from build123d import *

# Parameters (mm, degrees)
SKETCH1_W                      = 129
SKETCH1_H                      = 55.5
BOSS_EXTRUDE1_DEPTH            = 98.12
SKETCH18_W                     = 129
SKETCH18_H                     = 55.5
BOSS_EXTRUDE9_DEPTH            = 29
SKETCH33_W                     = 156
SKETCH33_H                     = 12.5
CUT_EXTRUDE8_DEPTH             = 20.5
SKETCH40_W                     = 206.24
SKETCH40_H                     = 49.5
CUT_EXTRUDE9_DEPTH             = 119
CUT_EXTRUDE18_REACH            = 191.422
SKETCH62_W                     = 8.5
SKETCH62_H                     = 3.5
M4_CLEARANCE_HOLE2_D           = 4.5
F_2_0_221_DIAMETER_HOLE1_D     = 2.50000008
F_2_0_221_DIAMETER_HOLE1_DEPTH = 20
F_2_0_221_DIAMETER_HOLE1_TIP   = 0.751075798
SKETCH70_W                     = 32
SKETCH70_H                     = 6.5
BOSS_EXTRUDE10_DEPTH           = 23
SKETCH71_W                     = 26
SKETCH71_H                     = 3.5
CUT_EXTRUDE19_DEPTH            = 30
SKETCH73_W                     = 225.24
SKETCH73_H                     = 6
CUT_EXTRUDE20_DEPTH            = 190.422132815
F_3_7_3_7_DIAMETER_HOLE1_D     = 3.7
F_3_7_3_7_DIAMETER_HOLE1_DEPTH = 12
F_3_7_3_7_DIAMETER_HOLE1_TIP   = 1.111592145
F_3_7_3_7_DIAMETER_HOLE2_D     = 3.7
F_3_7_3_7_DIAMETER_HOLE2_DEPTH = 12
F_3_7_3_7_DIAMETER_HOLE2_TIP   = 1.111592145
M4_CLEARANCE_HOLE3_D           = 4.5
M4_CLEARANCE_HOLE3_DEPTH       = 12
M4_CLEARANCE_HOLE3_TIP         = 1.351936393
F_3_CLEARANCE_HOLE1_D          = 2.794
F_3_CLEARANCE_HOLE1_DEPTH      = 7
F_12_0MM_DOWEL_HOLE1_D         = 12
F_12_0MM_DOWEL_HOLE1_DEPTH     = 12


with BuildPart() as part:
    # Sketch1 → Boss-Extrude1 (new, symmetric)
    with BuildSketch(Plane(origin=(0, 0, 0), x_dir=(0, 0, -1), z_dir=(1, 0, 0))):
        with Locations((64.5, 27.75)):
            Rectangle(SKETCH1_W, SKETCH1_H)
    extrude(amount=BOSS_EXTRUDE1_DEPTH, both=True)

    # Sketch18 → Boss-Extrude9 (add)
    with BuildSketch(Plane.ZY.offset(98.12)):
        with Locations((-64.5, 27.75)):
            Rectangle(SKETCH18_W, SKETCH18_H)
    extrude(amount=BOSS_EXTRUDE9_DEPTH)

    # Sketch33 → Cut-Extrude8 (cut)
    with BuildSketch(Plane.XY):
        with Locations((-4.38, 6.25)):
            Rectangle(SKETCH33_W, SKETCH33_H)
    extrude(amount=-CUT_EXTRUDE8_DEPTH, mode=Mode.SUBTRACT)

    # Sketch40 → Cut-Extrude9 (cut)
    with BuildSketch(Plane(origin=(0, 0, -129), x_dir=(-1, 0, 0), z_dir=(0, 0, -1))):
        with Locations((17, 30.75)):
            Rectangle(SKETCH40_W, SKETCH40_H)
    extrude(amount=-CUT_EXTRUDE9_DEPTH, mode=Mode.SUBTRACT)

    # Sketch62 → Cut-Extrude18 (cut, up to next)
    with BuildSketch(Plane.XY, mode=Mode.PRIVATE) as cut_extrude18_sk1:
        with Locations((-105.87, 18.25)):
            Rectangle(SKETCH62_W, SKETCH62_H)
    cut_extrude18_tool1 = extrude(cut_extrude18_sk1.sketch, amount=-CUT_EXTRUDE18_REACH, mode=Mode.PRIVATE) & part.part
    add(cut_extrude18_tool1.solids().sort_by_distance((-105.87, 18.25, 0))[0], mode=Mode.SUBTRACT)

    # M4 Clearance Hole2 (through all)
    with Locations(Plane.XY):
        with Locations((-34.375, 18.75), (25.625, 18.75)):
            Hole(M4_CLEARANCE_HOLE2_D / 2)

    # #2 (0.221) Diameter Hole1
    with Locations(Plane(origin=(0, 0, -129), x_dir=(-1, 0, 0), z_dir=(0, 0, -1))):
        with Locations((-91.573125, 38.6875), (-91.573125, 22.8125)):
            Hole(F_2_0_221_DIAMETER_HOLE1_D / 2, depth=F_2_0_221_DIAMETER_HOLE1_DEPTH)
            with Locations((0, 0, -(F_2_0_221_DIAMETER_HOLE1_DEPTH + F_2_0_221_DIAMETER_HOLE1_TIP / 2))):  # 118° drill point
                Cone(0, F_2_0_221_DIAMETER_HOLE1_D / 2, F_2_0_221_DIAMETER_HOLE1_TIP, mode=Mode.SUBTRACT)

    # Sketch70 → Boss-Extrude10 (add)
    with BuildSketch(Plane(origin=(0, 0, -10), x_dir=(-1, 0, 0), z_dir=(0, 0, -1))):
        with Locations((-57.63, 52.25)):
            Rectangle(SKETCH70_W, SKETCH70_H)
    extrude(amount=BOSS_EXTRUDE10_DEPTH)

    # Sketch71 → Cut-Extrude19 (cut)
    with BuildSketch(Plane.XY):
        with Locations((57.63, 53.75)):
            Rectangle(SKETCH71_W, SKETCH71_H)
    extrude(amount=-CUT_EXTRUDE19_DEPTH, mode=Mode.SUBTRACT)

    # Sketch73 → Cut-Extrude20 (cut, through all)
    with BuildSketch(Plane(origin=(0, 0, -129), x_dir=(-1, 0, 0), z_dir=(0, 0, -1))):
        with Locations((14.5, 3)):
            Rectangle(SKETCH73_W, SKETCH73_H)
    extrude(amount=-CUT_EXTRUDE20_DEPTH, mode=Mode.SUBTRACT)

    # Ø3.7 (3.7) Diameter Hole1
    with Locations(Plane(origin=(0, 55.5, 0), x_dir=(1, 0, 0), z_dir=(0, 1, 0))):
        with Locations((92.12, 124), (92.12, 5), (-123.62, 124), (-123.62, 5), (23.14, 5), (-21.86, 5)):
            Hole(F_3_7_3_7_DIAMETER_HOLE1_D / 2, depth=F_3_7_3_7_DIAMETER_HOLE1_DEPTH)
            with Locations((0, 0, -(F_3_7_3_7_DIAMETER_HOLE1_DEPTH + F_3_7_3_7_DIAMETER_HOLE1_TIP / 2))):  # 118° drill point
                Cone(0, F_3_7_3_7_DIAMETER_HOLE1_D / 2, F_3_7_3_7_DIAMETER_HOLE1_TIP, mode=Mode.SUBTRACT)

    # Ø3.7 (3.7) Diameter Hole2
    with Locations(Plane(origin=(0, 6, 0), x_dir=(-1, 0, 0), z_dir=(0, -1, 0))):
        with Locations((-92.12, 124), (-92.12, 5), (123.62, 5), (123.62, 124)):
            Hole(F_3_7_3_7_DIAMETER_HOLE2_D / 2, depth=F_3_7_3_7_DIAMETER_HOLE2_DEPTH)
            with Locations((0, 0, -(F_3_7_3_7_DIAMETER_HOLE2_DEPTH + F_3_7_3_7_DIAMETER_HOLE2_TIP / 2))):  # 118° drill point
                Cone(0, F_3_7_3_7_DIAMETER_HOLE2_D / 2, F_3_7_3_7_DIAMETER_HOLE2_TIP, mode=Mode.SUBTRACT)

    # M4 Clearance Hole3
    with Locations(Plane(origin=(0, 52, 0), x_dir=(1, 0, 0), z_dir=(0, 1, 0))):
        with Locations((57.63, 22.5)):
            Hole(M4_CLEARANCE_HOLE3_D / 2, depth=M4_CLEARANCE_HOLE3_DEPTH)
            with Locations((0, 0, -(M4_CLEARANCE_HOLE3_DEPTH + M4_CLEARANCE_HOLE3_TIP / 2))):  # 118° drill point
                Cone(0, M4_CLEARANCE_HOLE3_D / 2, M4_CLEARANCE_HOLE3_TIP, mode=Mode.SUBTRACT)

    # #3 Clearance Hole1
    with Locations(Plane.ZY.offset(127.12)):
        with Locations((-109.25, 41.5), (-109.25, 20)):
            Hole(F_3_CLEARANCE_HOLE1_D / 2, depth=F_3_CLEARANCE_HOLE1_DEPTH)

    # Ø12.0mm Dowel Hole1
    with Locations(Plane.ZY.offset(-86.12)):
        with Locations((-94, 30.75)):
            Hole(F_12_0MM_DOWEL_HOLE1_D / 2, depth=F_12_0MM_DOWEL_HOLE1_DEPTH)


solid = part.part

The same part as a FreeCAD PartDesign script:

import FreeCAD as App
import Part
import Sketcher
from FreeCAD import Vector

doc = App.newDocument("Part")
body = doc.addObject("PartDesign::Body", "Body")

# Sketch on YZ plane
sketch1 = doc.addObject("Sketcher::SketchObject", "Sketch")
body.addObject(sketch1)
sketch1.AttachmentSupport = (doc.YZ_Plane, [""])
sketch1.MapMode = "FlatFace"
sketch1.addGeometry([
    Part.LineSegment(Vector(56, 0, 0), Vector(0, 0, 0)),
    Part.LineSegment(Vector(0, 0, 0), Vector(0, -129, 0)),
    Part.LineSegment(Vector(0, -129, 0), Vector(56, -129, 0)),
    Part.LineSegment(Vector(56, -129, 0), Vector(56, 0, 0)),
], False)
sketch1.addConstraint([
    Sketcher.Constraint("Coincident", 0, 2, 1, 1),
    Sketcher.Constraint("Coincident", 1, 2, 2, 1),
    Sketcher.Constraint("Coincident", 2, 2, 3, 1),
    Sketcher.Constraint("Coincident", 3, 2, 0, 1),
    Sketcher.Constraint("Horizontal", 0),
    Sketcher.Constraint("Vertical", 1),
    Sketcher.Constraint("Horizontal", 2),
    Sketcher.Constraint("Vertical", 3),
    Sketcher.Constraint("Coincident", 0, 2, -1, 1),
    Sketcher.Constraint("DistanceY", 1, 2, 1, 1, 129.0),
    Sketcher.Constraint("DistanceX", 0, 2, 0, 1, 55.5),
])
pad1 = doc.addObject("PartDesign::Pad", "Pad")
body.addObject(pad1)
pad1.Profile = sketch1
pad1.Length = 196.24
pad1.Midplane = True

# Sketch on YZ plane
sketch2 = doc.addObject("Sketcher::SketchObject", "Sketch001")
body.addObject(sketch2)
sketch2.AttachmentSupport = (doc.YZ_Plane, [""])
sketch2.MapMode = "FlatFace"
sketch2.AttachmentOffset = App.Placement(Vector(0, 0, -98.12), App.Rotation())
sketch2.addGeometry([
    Part.LineSegment(Vector(56, -129, 0), Vector(0, -129, 0)),
    Part.LineSegment(Vector(0, -129, 0), Vector(0, 0, 0)),
    Part.LineSegment(Vector(0, 0, 0), Vector(56, 0, 0)),
    Part.LineSegment(Vector(56, 0, 0), Vector(56, -129, 0)),
], False)
sketch2.addConstraint([
    Sketcher.Constraint("Coincident", 0, 2, 1, 1),
    Sketcher.Constraint("Coincident", 1, 2, 2, 1),
    Sketcher.Constraint("Coincident", 2, 2, 3, 1),
    Sketcher.Constraint("Coincident", 3, 2, 0, 1),
    Sketcher.Constraint("Horizontal", 0),
    Sketcher.Constraint("Vertical", 1),
    Sketcher.Constraint("Horizontal", 2),
    Sketcher.Constraint("Vertical", 3),
    Sketcher.Constraint("Coincident", 1, 2, -1, 1),
    Sketcher.Constraint("DistanceY", 1, 1, 1, 2, 129.0),
    Sketcher.Constraint("DistanceX", 0, 2, 0, 1, 55.5),
])
pad2 = doc.addObject("PartDesign::Pad", "Pad001")
body.addObject(pad2)
pad2.Profile = sketch2
pad2.Length = 29
pad2.Reversed = True

# Sketch on XY plane
sketch3 = doc.addObject("Sketcher::SketchObject", "Sketch002")
body.addObject(sketch3)
sketch3.AttachmentSupport = (doc.XY_Plane, [""])
sketch3.MapMode = "FlatFace"
sketch3.addGeometry([
    Part.LineSegment(Vector(-82, 12, 0), Vector(-82, 0, 0)),
    Part.LineSegment(Vector(-82, 0, 0), Vector(74, 0, 0)),
    Part.LineSegment(Vector(74, 0, 0), Vector(74, 12, 0)),
    Part.LineSegment(Vector(74, 12, 0), Vector(-82, 12, 0)),
], False)
sketch3.addConstraint([
    Sketcher.Constraint("Coincident", 0, 2, 1, 1),
    Sketcher.Constraint("Coincident", 1, 2, 2, 1),
    Sketcher.Constraint("Coincident", 2, 2, 3, 1),
    Sketcher.Constraint("Coincident", 3, 2, 0, 1),
    Sketcher.Constraint("Vertical", 0),
    Sketcher.Constraint("Horizontal", 1),
    Sketcher.Constraint("Vertical", 2),
    Sketcher.Constraint("Horizontal", 3),
    Sketcher.Constraint("PointOnObject", 0, 2, -1),
    Sketcher.Constraint("DistanceX", 1, 1, 1, 2, 156.0),
    Sketcher.Constraint("DistanceY", 0, 2, 0, 1, 12.5),
    Sketcher.Constraint("DistanceX", 0, 2, -1, 1, 82.38),
])
pocket1 = doc.addObject("PartDesign::Pocket", "Pocket")
body.addObject(pocket1)
pocket1.Profile = sketch3
pocket1.Length = 20.5

# Sketch on XY plane
sketch4 = doc.addObject("Sketcher::SketchObject", "Sketch003")
body.addObject(sketch4)
sketch4.AttachmentSupport = (doc.XY_Plane, [""])
sketch4.MapMode = "FlatFace"
sketch4.AttachmentOffset = App.Placement(Vector(0, 0, -129), App.Rotation())
sketch4.addGeometry([
    Part.LineSegment(Vector(86, 56, 0), Vector(86, 6, 0)),
    Part.LineSegment(Vector(86, 6, 0), Vector(-120, 6, 0)),
    Part.LineSegment(Vector(-120, 6, 0), Vector(-120, 56, 0)),
    Part.LineSegment(Vector(-120, 56, 0), Vector(86, 56, 0)),
], False)
sketch4.addConstraint([
    Sketcher.Constraint("Coincident", 0, 2, 1, 1),
    Sketcher.Constraint("Coincident", 1, 2, 2, 1),
    Sketcher.Constraint("Coincident", 2, 2, 3, 1),
    Sketcher.Constraint("Coincident", 3, 2, 0, 1),
    Sketcher.Constraint("Vertical", 0),
    Sketcher.Constraint("Horizontal", 1),
    Sketcher.Constraint("Vertical", 2),
    Sketcher.Constraint("Horizontal", 3),
    Sketcher.Constraint("DistanceY", 0, 2, 0, 1, 49.5),
    Sketcher.Constraint("DistanceY", -1, 1, 0, 2, 6.0),
    Sketcher.Constraint("DistanceX", 1, 2, 1, 1, 206.24),
    Sketcher.Constraint("DistanceX", -1, 1, 0, 2, 86.12),
])
pocket2 = doc.addObject("PartDesign::Pocket", "Pocket001")
body.addObject(pocket2)
pocket2.Profile = sketch4
pocket2.Length = 119
pocket2.Reversed = True

# Sketch on XY plane
sketch5 = doc.addObject("Sketcher::SketchObject", "Sketch004")
body.addObject(sketch5)
sketch5.AttachmentSupport = (doc.XY_Plane, [""])
sketch5.MapMode = "FlatFace"
sketch5.addGeometry([
    Part.LineSegment(Vector(-110.1, 20, 0), Vector(-110.1, 16.5, 0)),
    Part.LineSegment(Vector(-110.1, 16.5, 0), Vector(-101.6, 16.5, 0)),
    Part.LineSegment(Vector(-101.6, 16.5, 0), Vector(-101.6, 20, 0)),
    Part.LineSegment(Vector(-101.6, 20, 0), Vector(-110.1, 20, 0)),
], False)
sketch5.addConstraint([
    Sketcher.Constraint("Coincident", 0, 2, 1, 1),
    Sketcher.Constraint("Coincident", 1, 2, 2, 1),
    Sketcher.Constraint("Coincident", 2, 2, 3, 1),
    Sketcher.Constraint("Coincident", 3, 2, 0, 1),
    Sketcher.Constraint("Vertical", 0),
    Sketcher.Constraint("Horizontal", 1),
    Sketcher.Constraint("Vertical", 2),
    Sketcher.Constraint("Horizontal", 3),
    Sketcher.Constraint("DistanceX", 1, 1, 1, 2, 8.5),
    Sketcher.Constraint("DistanceY", 0, 2, 0, 1, 3.5),
    Sketcher.Constraint("DistanceY", -1, 1, 2, 2, 20.0),
    Sketcher.Constraint("DistanceX", 0, 2, -1, 1, 110.12),
])
pocket3 = doc.addObject("PartDesign::Pocket", "Pocket002")
body.addObject(pocket3)
pocket3.Profile = sketch5
pocket3.Type = "UpToFirst"

# Sketch on XY plane
sketch6 = doc.addObject("Sketcher::SketchObject", "Sketch005")
body.addObject(sketch6)
sketch6.AttachmentSupport = (doc.XY_Plane, [""])
sketch6.MapMode = "FlatFace"
sketch6.addGeometry([
    Part.Circle(Vector(-34.4, 18.8, 0), Vector(0, 0, 1), 2.2),
    Part.Circle(Vector(25.6, 18.8, 0), Vector(0, 0, 1), 2.2),
], False)
sketch6.addConstraint([
    Sketcher.Constraint("Equal", 0, 1),
    Sketcher.Constraint("Horizontal", 0, 3, 1, 3),
    Sketcher.Constraint("Diameter", 0, 4.5),
    Sketcher.Constraint("DistanceX", 0, 3, 1, 3, 60.0),
    Sketcher.Constraint("DistanceY", -1, 1, 0, 3, 18.75),
    Sketcher.Constraint("DistanceX", 0, 3, -1, 1, 34.375),
])
doc.recompute()
hole = doc.addObject("PartDesign::Hole", "Hole")
body.addObject(hole)
hole.Profile = sketch6
hole.ThreadType = "None"
hole.Diameter = 4.5
hole.DepthType = "ThroughAll"

# Sketch on XY plane
sketch7 = doc.addObject("Sketcher::SketchObject", "Sketch006")
body.addObject(sketch7)
sketch7.AttachmentSupport = (doc.XY_Plane, [""])
sketch7.MapMode = "FlatFace"
sketch7.AttachmentOffset = App.Placement(Vector(0, 0, -129), App.Rotation())
sketch7.addGeometry([
    Part.Circle(Vector(91.6, 38.7, 0), Vector(0, 0, 1), 1.3),
    Part.Circle(Vector(91.6, 22.8, 0), Vector(0, 0, 1), 1.3),
], False)
sketch7.addConstraint([
    Sketcher.Constraint("Equal", 0, 1),
    Sketcher.Constraint("Vertical", 0, 3, 1, 3),
    Sketcher.Constraint("Diameter", 0, 2.5),
    Sketcher.Constraint("DistanceY", 1, 3, 0, 3, 15.875),
    Sketcher.Constraint("DistanceY", -1, 1, 0, 3, 38.6875),
    Sketcher.Constraint("DistanceX", -1, 1, 0, 3, 91.573125),
])
doc.recompute()
hole2 = doc.addObject("PartDesign::Hole", "Hole001")
body.addObject(hole2)
hole2.Profile = sketch7
hole2.ThreadType = "None"
hole2.Diameter = 2.5
hole2.DepthType = "Dimension"
hole2.Depth = 20
hole2.DrillPoint = "Angled"
hole2.DrillPointAngle = 118
hole2.Reversed = True

# Sketch on XY plane
sketch8 = doc.addObject("Sketcher::SketchObject", "Sketch007")
body.addObject(sketch8)
sketch8.AttachmentSupport = (doc.XY_Plane, [""])
sketch8.MapMode = "FlatFace"
sketch8.AttachmentOffset = App.Placement(Vector(0, 0, -10), App.Rotation())
sketch8.addGeometry([
    Part.LineSegment(Vector(74, 56, 0), Vector(74, 49, 0)),
    Part.LineSegment(Vector(74, 49, 0), Vector(42, 49, 0)),
    Part.LineSegment(Vector(42, 49, 0), Vector(42, 56, 0)),
    Part.LineSegment(Vector(42, 56, 0), Vector(74, 56, 0)),
], False)
sketch8.addConstraint([
    Sketcher.Constraint("Coincident", 0, 2, 1, 1),
    Sketcher.Constraint("Coincident", 1, 2, 2, 1),
    Sketcher.Constraint("Coincident", 2, 2, 3, 1),
    Sketcher.Constraint("Coincident", 3, 2, 0, 1),
    Sketcher.Constraint("Vertical", 0),
    Sketcher.Constraint("Horizontal", 1),
    Sketcher.Constraint("Vertical", 2),
    Sketcher.Constraint("Horizontal", 3),
    Sketcher.Constraint("DistanceX", 1, 2, 1, 1, 32.0),
    Sketcher.Constraint("DistanceY", 0, 2, 0, 1, 6.5),
    Sketcher.Constraint("DistanceY", -1, 1, 0, 2, 49.0),
    Sketcher.Constraint("DistanceX", -1, 1, 0, 2, 73.63),
])
pad3 = doc.addObject("PartDesign::Pad", "Pad002")
body.addObject(pad3)
pad3.Profile = sketch8
pad3.Length = 23
pad3.Reversed = True

# Sketch on XY plane
sketch9 = doc.addObject("Sketcher::SketchObject", "Sketch008")
body.addObject(sketch9)
sketch9.AttachmentSupport = (doc.XY_Plane, [""])
sketch9.MapMode = "FlatFace"
sketch9.addGeometry([
    Part.LineSegment(Vector(44.6, 55.5, 0), Vector(44.6, 52, 0)),
    Part.LineSegment(Vector(44.6, 52, 0), Vector(70.6, 52, 0)),
    Part.LineSegment(Vector(70.6, 52, 0), Vector(70.6, 55.5, 0)),
    Part.LineSegment(Vector(70.6, 55.5, 0), Vector(44.6, 55.5, 0)),
], False)
sketch9.addConstraint([
    Sketcher.Constraint("Coincident", 0, 2, 1, 1),
    Sketcher.Constraint("Coincident", 1, 2, 2, 1),
    Sketcher.Constraint("Coincident", 2, 2, 3, 1),
    Sketcher.Constraint("Coincident", 3, 2, 0, 1),
    Sketcher.Constraint("Vertical", 0),
    Sketcher.Constraint("Horizontal", 1),
    Sketcher.Constraint("Vertical", 2),
    Sketcher.Constraint("Horizontal", 3),
    Sketcher.Constraint("DistanceX", 1, 1, 1, 2, 26.0),
    Sketcher.Constraint("DistanceY", 0, 2, 0, 1, 3.5),
    Sketcher.Constraint("DistanceY", -1, 1, 0, 2, 52.0),
    Sketcher.Constraint("DistanceX", -1, 1, 0, 2, 44.63),
])
pocket4 = doc.addObject("PartDesign::Pocket", "Pocket003")
body.addObject(pocket4)
pocket4.Profile = sketch9
pocket4.Length = 30

# Sketch on XY plane
sketch10 = doc.addObject("Sketcher::SketchObject", "Sketch009")
body.addObject(sketch10)
sketch10.AttachmentSupport = (doc.XY_Plane, [""])
sketch10.MapMode = "FlatFace"
sketch10.AttachmentOffset = App.Placement(Vector(0, 0, -129), App.Rotation())
sketch10.addGeometry([
    Part.LineSegment(Vector(98, 6, 0), Vector(98, 0, 0)),
    Part.LineSegment(Vector(98, 0, 0), Vector(-127, 0, 0)),
    Part.LineSegment(Vector(-127, 0, 0), Vector(-127, 6, 0)),
    Part.LineSegment(Vector(-127, 6, 0), Vector(98, 6, 0)),
], False)
sketch10.addConstraint([
    Sketcher.Constraint("Coincident", 0, 2, 1, 1),
    Sketcher.Constraint("Coincident", 1, 2, 2, 1),
    Sketcher.Constraint("Coincident", 2, 2, 3, 1),
    Sketcher.Constraint("Coincident", 3, 2, 0, 1),
    Sketcher.Constraint("Vertical", 0),
    Sketcher.Constraint("Horizontal", 1),
    Sketcher.Constraint("Vertical", 2),
    Sketcher.Constraint("Horizontal", 3),
    Sketcher.Constraint("PointOnObject", 0, 2, -1),
    Sketcher.Constraint("DistanceY", 0, 2, 0, 1, 6.0),
    Sketcher.Constraint("DistanceX", 1, 2, 1, 1, 225.24),
    Sketcher.Constraint("DistanceX", -1, 1, 0, 2, 98.12),
])
pocket5 = doc.addObject("PartDesign::Pocket", "Pocket004")
body.addObject(pocket5)
pocket5.Profile = sketch10
pocket5.Type = "ThroughAll"
pocket5.Reversed = True

# Sketch on XZ plane
sketch11 = doc.addObject("Sketcher::SketchObject", "Sketch010")
body.addObject(sketch11)
sketch11.AttachmentSupport = (doc.XZ_Plane, [""])
sketch11.MapMode = "FlatFace"
sketch11.AttachmentOffset = App.Placement(Vector(0, 0, -55.5), App.Rotation())
sketch11.addGeometry([
    Part.Circle(Vector(92.1, -124, 0), Vector(0, 0, 1), 1.9),  # 0
    Part.Circle(Vector(92.1, -5, 0), Vector(0, 0, 1), 1.9),  # 1
    Part.Circle(Vector(-123.6, -124, 0), Vector(0, 0, 1), 1.9),  # 2
    Part.Circle(Vector(-123.6, -5, 0), Vector(0, 0, 1), 1.9),  # 3
    Part.Circle(Vector(23.1, -5, 0), Vector(0, 0, 1), 1.9),  # 4
    Part.Circle(Vector(-21.9, -5, 0), Vector(0, 0, 1), 1.9),  # 5
], False)
sketch11.addConstraint([
    Sketcher.Constraint("Equal", 0, 1),
    Sketcher.Constraint("Equal", 1, 2),
    Sketcher.Constraint("Equal", 2, 3),
    Sketcher.Constraint("Equal", 3, 4),
    Sketcher.Constraint("Equal", 4, 5),
    Sketcher.Constraint("Horizontal", 0, 3, 2, 3),
    Sketcher.Constraint("Horizontal", 1, 3, 3, 3),
    Sketcher.Constraint("Horizontal", 3, 3, 4, 3),
    Sketcher.Constraint("Horizontal", 4, 3, 5, 3),
    Sketcher.Constraint("Vertical", 0, 3, 1, 3),
    Sketcher.Constraint("Vertical", 2, 3, 3, 3),
    Sketcher.Constraint("Diameter", 0, 3.7),
    Sketcher.Constraint("DistanceY", 0, 3, -1, 1, 124.0),
    Sketcher.Constraint("DistanceY", 1, 3, -1, 1, 5.0),
    Sketcher.Constraint("DistanceX", 5, 3, 4, 3, 45.0),
    Sketcher.Constraint("DistanceX", -1, 1, 0, 3, 92.12),
    Sketcher.Constraint("DistanceX", 2, 3, -1, 1, 123.62),
    Sketcher.Constraint("DistanceX", -1, 1, 4, 3, 23.14),
])
doc.recompute()
hole3 = doc.addObject("PartDesign::Hole", "Hole002")
body.addObject(hole3)
hole3.Profile = sketch11
hole3.ThreadType = "None"
hole3.Diameter = 3.7
hole3.DepthType = "Dimension"
hole3.Depth = 12
hole3.DrillPoint = "Angled"
hole3.DrillPointAngle = 118
hole3.Reversed = True

# Sketch on XZ plane
sketch12 = doc.addObject("Sketcher::SketchObject", "Sketch011")
body.addObject(sketch12)
sketch12.AttachmentSupport = (doc.XZ_Plane, [""])
sketch12.MapMode = "FlatFace"
sketch12.AttachmentOffset = App.Placement(Vector(0, 0, -6), App.Rotation())
sketch12.addGeometry([
    Part.Circle(Vector(92.1, -124, 0), Vector(0, 0, 1), 1.9),
    Part.Circle(Vector(92.1, -5, 0), Vector(0, 0, 1), 1.9),
    Part.Circle(Vector(-123.6, -5, 0), Vector(0, 0, 1), 1.9),
    Part.Circle(Vector(-123.6, -124, 0), Vector(0, 0, 1), 1.9),
], False)
sketch12.addConstraint([
    Sketcher.Constraint("Equal", 0, 1),
    Sketcher.Constraint("Equal", 1, 2),
    Sketcher.Constraint("Equal", 2, 3),
    Sketcher.Constraint("Horizontal", 1, 3, 2, 3),
    Sketcher.Constraint("Horizontal", 0, 3, 3, 3),
    Sketcher.Constraint("Vertical", 0, 3, 1, 3),
    Sketcher.Constraint("Vertical", 2, 3, 3, 3),
    Sketcher.Constraint("Diameter", 0, 3.7),
    Sketcher.Constraint("DistanceY", 0, 3, -1, 1, 124.0),
    Sketcher.Constraint("DistanceY", 1, 3, -1, 1, 5.0),
    Sketcher.Constraint("DistanceX", -1, 1, 0, 3, 92.12),
    Sketcher.Constraint("DistanceX", 2, 3, -1, 1, 123.62),
])
doc.recompute()
hole4 = doc.addObject("PartDesign::Hole", "Hole003")
body.addObject(hole4)
hole4.Profile = sketch12
hole4.ThreadType = "None"
hole4.Diameter = 3.7
hole4.DepthType = "Dimension"
hole4.Depth = 12
hole4.DrillPoint = "Angled"
hole4.DrillPointAngle = 118

# Sketch on XZ plane
sketch13 = doc.addObject("Sketcher::SketchObject", "Sketch012")
body.addObject(sketch13)
sketch13.AttachmentSupport = (doc.XZ_Plane, [""])
sketch13.MapMode = "FlatFace"
sketch13.AttachmentOffset = App.Placement(Vector(0, 0, -52), App.Rotation())
sketch13.addGeometry(Part.Circle(Vector(57.6, -22.5, 0), Vector(0, 0, 1), 2.2), False)
sketch13.addConstraint([
    Sketcher.Constraint("Diameter", 0, 4.5),
    Sketcher.Constraint("DistanceY", 0, 3, -1, 1, 22.5),
    Sketcher.Constraint("DistanceX", -1, 1, 0, 3, 57.63),
])
doc.recompute()
hole5 = doc.addObject("PartDesign::Hole", "Hole004")
body.addObject(hole5)
hole5.Profile = sketch13
hole5.ThreadType = "None"
hole5.Diameter = 4.5
hole5.DepthType = "Dimension"
hole5.Depth = 12
hole5.DrillPoint = "Angled"
hole5.DrillPointAngle = 118
hole5.Reversed = True

# Sketch on YZ plane
sketch14 = doc.addObject("Sketcher::SketchObject", "Sketch013")
body.addObject(sketch14)
sketch14.AttachmentSupport = (doc.YZ_Plane, [""])
sketch14.MapMode = "FlatFace"
sketch14.AttachmentOffset = App.Placement(Vector(0, 0, -127.12), App.Rotation())
sketch14.addGeometry([
    Part.Circle(Vector(41.5, -109.2, 0), Vector(0, 0, 1), 1.4),
    Part.Circle(Vector(20, -109.2, 0), Vector(0, 0, 1), 1.4),
], False)
sketch14.addConstraint([
    Sketcher.Constraint("Equal", 0, 1),
    Sketcher.Constraint("Horizontal", 0, 3, 1, 3),
    Sketcher.Constraint("Diameter", 0, 2.794),
    Sketcher.Constraint("DistanceX", -1, 1, 1, 3, 20.0),
    Sketcher.Constraint("DistanceX", -1, 1, 0, 3, 41.5),
    Sketcher.Constraint("DistanceY", 0, 3, -1, 1, 109.25),
])
doc.recompute()
hole6 = doc.addObject("PartDesign::Hole", "Hole005")
body.addObject(hole6)
hole6.Profile = sketch14
hole6.ThreadType = "None"
hole6.Diameter = 2.794
hole6.DepthType = "Dimension"
hole6.Depth = 7
hole6.DrillPoint = "Flat"
hole6.Reversed = True

# Sketch on YZ plane
sketch15 = doc.addObject("Sketcher::SketchObject", "Sketch014")
body.addObject(sketch15)
sketch15.AttachmentSupport = (doc.YZ_Plane, [""])
sketch15.MapMode = "FlatFace"
sketch15.AttachmentOffset = App.Placement(Vector(0, 0, 86.12), App.Rotation())
sketch15.addGeometry(Part.Circle(Vector(31, -94, 0), Vector(0, 0, 1), 6), False)
sketch15.addConstraint([
    Sketcher.Constraint("Diameter", 0, 12.0),
    Sketcher.Constraint("DistanceY", 0, 3, -1, 1, 94.0),
    Sketcher.Constraint("DistanceX", -1, 1, 0, 3, 30.75),
])
doc.recompute()
hole7 = doc.addObject("PartDesign::Hole", "Hole006")
body.addObject(hole7)
hole7.Profile = sketch15
hole7.ThreadType = "None"
hole7.Diameter = 12
hole7.DepthType = "Dimension"
hole7.Depth = 12
hole7.DrillPoint = "Flat"
hole7.Reversed = True

doc.recompute()
